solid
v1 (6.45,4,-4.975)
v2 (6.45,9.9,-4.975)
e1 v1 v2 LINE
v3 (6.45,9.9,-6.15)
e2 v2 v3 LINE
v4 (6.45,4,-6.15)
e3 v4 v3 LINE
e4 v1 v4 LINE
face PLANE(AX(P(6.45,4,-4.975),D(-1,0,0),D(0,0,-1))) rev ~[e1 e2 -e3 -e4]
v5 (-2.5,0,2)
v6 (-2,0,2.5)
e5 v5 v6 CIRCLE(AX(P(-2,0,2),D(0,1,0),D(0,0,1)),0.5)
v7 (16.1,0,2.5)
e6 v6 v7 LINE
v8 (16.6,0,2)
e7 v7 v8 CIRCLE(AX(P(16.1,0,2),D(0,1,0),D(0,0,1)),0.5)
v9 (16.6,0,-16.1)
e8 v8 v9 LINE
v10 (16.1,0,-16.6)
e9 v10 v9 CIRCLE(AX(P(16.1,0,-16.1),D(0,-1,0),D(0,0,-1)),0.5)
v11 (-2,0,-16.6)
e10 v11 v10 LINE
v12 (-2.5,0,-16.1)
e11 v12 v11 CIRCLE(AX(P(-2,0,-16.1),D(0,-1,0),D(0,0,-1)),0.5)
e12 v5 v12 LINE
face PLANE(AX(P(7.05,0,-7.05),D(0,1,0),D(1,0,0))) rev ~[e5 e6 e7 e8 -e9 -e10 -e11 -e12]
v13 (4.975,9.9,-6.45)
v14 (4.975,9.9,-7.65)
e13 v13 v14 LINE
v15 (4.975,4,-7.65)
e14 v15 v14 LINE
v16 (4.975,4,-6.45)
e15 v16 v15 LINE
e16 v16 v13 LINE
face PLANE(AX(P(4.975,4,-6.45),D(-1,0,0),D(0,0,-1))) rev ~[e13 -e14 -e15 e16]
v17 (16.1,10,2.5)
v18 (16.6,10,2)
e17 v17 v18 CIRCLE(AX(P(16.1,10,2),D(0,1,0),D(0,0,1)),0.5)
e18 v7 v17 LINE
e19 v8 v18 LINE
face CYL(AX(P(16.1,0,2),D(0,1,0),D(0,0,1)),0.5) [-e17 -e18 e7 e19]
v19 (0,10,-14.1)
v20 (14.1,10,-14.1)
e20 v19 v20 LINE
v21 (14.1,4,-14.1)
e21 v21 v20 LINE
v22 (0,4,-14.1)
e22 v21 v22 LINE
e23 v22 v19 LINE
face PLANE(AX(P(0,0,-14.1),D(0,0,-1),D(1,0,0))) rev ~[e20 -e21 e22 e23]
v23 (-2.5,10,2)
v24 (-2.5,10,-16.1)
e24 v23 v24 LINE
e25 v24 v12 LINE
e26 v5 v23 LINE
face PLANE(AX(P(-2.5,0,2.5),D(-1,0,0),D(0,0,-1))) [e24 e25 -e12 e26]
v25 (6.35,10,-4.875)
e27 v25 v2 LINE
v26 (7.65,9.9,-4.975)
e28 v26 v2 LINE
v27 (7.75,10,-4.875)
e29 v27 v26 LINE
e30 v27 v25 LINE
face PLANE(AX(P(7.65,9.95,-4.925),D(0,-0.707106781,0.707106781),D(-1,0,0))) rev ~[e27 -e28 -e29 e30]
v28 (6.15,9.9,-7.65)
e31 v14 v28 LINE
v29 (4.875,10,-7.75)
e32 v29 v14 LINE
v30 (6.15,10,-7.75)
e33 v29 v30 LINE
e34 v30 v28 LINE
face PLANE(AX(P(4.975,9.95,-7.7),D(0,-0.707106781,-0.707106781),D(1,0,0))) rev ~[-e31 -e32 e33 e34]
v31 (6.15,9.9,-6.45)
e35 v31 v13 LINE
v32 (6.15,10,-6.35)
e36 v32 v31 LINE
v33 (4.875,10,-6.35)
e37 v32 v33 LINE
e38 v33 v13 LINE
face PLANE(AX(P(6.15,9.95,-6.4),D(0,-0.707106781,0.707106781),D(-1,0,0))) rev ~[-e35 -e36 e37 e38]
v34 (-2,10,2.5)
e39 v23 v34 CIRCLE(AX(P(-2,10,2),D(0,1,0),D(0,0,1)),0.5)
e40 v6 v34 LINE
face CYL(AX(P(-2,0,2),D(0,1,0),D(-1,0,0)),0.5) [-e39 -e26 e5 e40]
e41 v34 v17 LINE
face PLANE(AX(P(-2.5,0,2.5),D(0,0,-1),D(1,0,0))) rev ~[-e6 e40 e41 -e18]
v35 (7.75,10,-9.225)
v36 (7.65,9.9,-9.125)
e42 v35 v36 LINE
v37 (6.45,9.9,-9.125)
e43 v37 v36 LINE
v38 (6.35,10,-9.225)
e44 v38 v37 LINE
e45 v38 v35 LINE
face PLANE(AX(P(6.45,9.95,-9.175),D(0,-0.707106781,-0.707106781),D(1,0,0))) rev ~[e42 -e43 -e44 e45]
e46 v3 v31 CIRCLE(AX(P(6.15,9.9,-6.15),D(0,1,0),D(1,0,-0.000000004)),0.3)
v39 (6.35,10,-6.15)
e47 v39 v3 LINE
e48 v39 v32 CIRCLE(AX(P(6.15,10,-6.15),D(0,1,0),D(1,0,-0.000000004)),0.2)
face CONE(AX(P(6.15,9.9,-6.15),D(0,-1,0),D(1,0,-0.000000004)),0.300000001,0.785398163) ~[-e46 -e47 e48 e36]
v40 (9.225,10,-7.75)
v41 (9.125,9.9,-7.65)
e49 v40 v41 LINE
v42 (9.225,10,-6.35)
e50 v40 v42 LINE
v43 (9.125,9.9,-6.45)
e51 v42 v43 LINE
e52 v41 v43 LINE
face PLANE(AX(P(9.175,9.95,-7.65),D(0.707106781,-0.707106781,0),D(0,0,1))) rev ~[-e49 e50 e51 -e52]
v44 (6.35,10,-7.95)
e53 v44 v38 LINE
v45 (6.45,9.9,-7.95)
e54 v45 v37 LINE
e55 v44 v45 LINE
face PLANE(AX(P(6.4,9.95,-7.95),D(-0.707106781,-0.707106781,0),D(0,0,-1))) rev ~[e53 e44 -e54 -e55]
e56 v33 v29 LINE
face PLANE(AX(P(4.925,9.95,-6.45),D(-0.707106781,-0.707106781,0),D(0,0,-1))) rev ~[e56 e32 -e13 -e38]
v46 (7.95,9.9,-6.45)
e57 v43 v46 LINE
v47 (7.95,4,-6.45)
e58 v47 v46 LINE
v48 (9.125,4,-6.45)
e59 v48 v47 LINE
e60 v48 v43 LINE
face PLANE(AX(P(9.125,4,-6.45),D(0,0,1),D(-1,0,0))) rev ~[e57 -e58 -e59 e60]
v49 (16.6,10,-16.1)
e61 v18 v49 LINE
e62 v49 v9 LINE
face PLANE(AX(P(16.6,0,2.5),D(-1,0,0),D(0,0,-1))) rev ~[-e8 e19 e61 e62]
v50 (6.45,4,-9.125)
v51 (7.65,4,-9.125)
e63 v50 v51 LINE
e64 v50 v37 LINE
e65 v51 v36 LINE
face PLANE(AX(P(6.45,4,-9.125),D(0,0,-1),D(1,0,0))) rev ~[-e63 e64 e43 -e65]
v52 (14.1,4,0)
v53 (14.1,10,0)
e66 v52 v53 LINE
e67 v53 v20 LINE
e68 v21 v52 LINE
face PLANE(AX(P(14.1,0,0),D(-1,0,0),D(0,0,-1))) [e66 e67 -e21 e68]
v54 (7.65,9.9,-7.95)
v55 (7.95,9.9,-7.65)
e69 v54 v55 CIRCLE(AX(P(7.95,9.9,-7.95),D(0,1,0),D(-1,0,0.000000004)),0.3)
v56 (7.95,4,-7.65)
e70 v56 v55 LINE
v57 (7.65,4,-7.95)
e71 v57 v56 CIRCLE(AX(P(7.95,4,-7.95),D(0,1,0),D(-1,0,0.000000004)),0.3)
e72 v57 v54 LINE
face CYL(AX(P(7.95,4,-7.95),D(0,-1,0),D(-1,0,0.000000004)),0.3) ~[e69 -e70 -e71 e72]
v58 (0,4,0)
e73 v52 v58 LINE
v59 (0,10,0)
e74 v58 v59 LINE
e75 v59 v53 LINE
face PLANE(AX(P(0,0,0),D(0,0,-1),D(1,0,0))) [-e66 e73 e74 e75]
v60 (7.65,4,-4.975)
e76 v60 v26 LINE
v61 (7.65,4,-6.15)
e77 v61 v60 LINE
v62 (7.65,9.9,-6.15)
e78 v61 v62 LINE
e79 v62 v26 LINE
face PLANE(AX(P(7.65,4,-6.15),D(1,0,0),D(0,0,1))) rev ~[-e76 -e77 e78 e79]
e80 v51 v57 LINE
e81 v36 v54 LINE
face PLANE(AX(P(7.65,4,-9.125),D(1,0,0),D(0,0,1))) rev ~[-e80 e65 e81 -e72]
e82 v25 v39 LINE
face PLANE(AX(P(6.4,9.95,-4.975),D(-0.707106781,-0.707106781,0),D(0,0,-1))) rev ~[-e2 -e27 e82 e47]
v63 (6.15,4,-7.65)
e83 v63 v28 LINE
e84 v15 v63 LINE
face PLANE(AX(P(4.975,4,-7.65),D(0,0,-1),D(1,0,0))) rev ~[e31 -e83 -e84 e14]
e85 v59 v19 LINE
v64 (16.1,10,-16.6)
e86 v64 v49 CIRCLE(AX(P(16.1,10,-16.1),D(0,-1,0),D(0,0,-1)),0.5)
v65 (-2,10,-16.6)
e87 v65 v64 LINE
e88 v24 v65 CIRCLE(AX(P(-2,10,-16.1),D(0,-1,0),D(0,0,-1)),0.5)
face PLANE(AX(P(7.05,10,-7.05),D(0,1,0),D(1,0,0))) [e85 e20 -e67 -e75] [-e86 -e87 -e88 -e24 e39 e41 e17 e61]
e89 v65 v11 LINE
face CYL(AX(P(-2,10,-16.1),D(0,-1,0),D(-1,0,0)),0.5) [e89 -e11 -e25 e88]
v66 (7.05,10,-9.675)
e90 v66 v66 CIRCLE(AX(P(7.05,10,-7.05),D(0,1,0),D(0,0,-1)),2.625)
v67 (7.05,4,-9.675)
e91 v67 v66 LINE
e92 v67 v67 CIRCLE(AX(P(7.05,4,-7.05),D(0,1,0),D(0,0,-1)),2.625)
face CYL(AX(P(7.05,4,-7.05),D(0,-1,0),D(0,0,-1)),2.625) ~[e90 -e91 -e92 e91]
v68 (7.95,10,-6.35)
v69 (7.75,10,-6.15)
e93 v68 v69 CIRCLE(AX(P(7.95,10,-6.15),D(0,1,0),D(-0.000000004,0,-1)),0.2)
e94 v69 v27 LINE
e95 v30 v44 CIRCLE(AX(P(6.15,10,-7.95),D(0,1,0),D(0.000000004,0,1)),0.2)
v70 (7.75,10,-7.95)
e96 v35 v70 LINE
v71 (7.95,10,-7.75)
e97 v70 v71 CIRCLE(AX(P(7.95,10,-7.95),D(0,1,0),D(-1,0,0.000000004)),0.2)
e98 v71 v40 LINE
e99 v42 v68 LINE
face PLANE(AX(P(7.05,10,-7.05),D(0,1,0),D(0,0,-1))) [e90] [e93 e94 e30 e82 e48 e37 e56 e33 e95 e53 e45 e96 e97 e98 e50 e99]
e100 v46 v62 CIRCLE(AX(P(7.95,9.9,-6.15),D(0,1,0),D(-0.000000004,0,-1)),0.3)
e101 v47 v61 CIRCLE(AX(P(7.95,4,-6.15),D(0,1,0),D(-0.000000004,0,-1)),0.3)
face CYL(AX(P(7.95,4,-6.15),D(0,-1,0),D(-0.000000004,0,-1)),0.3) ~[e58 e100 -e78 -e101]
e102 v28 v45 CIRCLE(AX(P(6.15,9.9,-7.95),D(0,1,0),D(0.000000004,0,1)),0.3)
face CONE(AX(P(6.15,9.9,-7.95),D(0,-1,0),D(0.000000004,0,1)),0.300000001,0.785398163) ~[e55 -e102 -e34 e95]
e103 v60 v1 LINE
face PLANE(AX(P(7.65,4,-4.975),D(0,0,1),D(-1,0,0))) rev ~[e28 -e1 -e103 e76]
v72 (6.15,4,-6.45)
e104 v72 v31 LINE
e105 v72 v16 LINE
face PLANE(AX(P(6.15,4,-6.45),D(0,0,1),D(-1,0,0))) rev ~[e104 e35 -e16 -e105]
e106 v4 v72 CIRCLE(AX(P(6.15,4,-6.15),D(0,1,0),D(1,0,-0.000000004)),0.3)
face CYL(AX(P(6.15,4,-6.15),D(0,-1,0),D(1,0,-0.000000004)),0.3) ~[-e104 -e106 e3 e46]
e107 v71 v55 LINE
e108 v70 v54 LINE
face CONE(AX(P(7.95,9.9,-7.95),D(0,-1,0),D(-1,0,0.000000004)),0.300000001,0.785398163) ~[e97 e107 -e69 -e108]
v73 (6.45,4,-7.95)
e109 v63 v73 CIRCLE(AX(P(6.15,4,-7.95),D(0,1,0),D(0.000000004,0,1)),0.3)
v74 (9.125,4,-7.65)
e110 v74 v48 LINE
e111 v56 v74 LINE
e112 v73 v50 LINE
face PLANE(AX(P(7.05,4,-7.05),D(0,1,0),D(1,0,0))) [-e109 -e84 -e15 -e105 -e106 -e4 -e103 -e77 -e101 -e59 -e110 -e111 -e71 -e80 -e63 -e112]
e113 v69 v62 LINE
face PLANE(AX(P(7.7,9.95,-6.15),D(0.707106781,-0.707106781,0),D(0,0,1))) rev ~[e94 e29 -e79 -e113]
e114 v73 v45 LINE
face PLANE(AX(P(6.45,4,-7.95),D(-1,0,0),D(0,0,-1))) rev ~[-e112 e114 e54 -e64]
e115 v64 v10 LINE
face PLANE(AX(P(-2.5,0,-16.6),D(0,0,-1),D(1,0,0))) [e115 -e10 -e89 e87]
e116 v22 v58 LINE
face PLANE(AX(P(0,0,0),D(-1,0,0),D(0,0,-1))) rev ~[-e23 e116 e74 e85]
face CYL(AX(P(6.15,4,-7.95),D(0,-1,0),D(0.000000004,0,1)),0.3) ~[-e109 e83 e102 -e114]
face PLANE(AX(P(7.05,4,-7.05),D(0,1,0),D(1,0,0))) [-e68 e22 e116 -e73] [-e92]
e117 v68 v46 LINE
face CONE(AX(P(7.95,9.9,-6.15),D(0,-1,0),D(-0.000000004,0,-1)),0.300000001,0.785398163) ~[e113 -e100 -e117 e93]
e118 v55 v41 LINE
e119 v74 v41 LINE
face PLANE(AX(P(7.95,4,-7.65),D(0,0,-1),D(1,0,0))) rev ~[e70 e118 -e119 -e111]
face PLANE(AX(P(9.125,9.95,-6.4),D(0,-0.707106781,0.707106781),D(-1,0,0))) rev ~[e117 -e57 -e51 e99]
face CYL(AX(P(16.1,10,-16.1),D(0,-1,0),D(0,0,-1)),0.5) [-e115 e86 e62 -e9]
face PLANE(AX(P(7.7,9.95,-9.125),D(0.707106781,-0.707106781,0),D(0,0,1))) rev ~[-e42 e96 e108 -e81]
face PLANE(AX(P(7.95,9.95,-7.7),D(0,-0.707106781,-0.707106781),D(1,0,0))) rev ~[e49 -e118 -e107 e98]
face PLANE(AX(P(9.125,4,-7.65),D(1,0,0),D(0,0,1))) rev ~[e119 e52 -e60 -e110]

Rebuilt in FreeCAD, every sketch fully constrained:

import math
import FreeCAD as App
import Part
import Sketcher
Q = App.Units.Quantity


def edges_at(feature, points):
    """Names of the edges that pass closest to the given points."""
    edges = feature.Shape.Edges
    near = lambda p: min(range(len(edges)), key=lambda i: edges[i].distToShape(Part.Vertex(*p))[0])
    return sorted({f"Edge{near(p) + 1}" for p in points})


def add_polygon(sketch, points):
    """Adds a closed chain of lines whose ends are joined by coincident constraints."""
    first, n = sketch.GeometryCount, len(points)
    for a, b in zip(points, points[1:] + points[:1]):
        sketch.addGeometry(Part.LineSegment(App.Vector(*a, 0), App.Vector(*b, 0)), False)
    for i in range(n):
        sketch.addConstraint(Sketcher.Constraint("Coincident", first + i, 2, first + (i + 1) % n, 1))

doc = App.newDocument("Part")
body = doc.addObject("PartDesign::Body", "Body")

sketch1 = body.newObject("Sketcher::SketchObject", "Sketch")
sketch1.AttachmentSupport = (doc.getObject("XZ_Plane"), [""])
sketch1.MapMode = "FlatFace"
add_polygon(sketch1, [(-2, -17), (-2, 2), (17, 2), (17, -17)])
sketch1.addConstraint(Sketcher.Constraint("Vertical", 0))
sketch1.addConstraint(Sketcher.Constraint("Horizontal", 1))
sketch1.addConstraint(Sketcher.Constraint("Vertical", 2))
sketch1.addConstraint(Sketcher.Constraint("Horizontal", 3))
sketch1.addConstraint(Sketcher.Constraint("Equal", 3, 0))
sketch1.addConstraint(Sketcher.Constraint("DistanceX", 1, 1, 1, 2, Q("19.1 mm")))
sketch1.addConstraint(Sketcher.Constraint("DistanceX", 0, 2, -1, 1, Q("2.5 mm")))
sketch1.addConstraint(Sketcher.Constraint("DistanceY", -1, 1, 0, 2, Q("2.5 mm")))
pad1 = body.newObject("PartDesign::Pad", "Pad")
pad1.Profile = sketch1
pad1.Length = 4
pad1.Reversed = True

sketch2 = body.newObject("Sketcher::SketchObject", "Sketch001")
sketch2.AttachmentSupport = (doc.getObject("XZ_Plane"), [""])
sketch2.MapMode = "FlatFace"
add_polygon(sketch2, [(-2, -17), (-2, 2), (17, 2), (17, -17)])
add_polygon(sketch2, [(14, 0), (0, 0), (0, -14), (14, -14)])
sketch2.addConstraint(Sketcher.Constraint("Vertical", 0))
sketch2.addConstraint(Sketcher.Constraint("Horizontal", 1))
sketch2.addConstraint(Sketcher.Constraint("Vertical", 2))
sketch2.addConstraint(Sketcher.Constraint("Horizontal", 3))
sketch2.addConstraint(Sketcher.Constraint("Horizontal", 4))
sketch2.addConstraint(Sketcher.Constraint("Vertical", 5))
sketch2.addConstraint(Sketcher.Constraint("Horizontal", 6))
sketch2.addConstraint(Sketcher.Constraint("Vertical", 7))
sketch2.addConstraint(Sketcher.Constraint("Coincident", 4, 2, -1, 1))
sketch2.addConstraint(Sketcher.Constraint("Equal", 3, 0))
sketch2.addConstraint(Sketcher.Constraint("Equal", 6, 5))
sketch2.addConstraint(Sketcher.Constraint("DistanceX", 1, 1, 1, 2, Q("19.1 mm")))
sketch2.addConstraint(Sketcher.Constraint("DistanceX", 4, 2, 4, 1, Q("14.1 mm")))
sketch2.addConstraint(Sketcher.Constraint("DistanceX", 0, 2, -1, 1, Q("2.5 mm")))
sketch2.addConstraint(Sketcher.Constraint("DistanceY", -1, 1, 0, 2, Q("2.5 mm")))
pad2 = body.newObject("PartDesign::Pad", "Pad001")
pad2.Profile = sketch2
pad2.Length = 10
pad2.Reversed = True

sketch3 = body.newObject("Sketcher::SketchObject", "Sketch002")
sketch3.AttachmentSupport = (doc.getObject("XZ_Plane"), [""])
sketch3.MapMode = "FlatFace"
sketch3.AttachmentOffset = App.Placement(App.Vector(0, 0, -4), App.Rotation())
sketch3.addGeometry(Part.Circle(App.Vector(7.05, -7.05, 0), App.Vector(0, 0, 1), 2.62), False)
sketch3.addGeometry(Part.ArcOfCircle(Part.Circle(App.Vector(6.15, -6.15, 0), App.Vector(0, 0, 1), 0.3), math.radians(-90), math.radians(0)), False)
sketch3.addGeometry(Part.LineSegment(App.Vector(6.15, -6.45, 0), App.Vector(4.97, -6.45, 0)), False)
sketch3.addGeometry(Part.LineSegment(App.Vector(4.97, -6.45, 0), App.Vector(4.97, -7.65, 0)), False)
sketch3.addGeometry(Part.LineSegment(App.Vector(4.97, -7.65, 0), App.Vector(6.15, -7.65, 0)), False)
sketch3.addGeometry(Part.ArcOfCircle(Part.Circle(App.Vector(6.15, -7.95, 0), App.Vector(0, 0, 1), 0.3), math.radians(0), math.radians(90)), False)
sketch3.addGeometry(Part.LineSegment(App.Vector(6.45, -7.95, 0), App.Vector(6.45, -9.12, 0)), False)
sketch3.addGeometry(Part.LineSegment(App.Vector(6.45, -9.12, 0), App.Vector(7.65, -9.12, 0)), False)
sketch3.addGeometry(Part.LineSegment(App.Vector(7.65, -9.12, 0), App.Vector(7.65, -7.95, 0)), False)
sketch3.addGeometry(Part.ArcOfCircle(Part.Circle(App.Vector(7.95, -7.95, 0), App.Vector(0, 0, 1), 0.3), math.radians(90), math.radians(180)), False)
sketch3.addGeometry(Part.LineSegment(App.Vector(7.95, -7.65, 0), App.Vector(9.12, -7.65, 0)), False)
sketch3.addGeometry(Part.LineSegment(App.Vector(9.12, -7.65, 0), App.Vector(9.12, -6.45, 0)), False)
sketch3.addGeometry(Part.LineSegment(App.Vector(9.12, -6.45, 0), App.Vector(7.95, -6.45, 0)), False)
sketch3.addGeometry(Part.ArcOfCircle(Part.Circle(App.Vector(7.95, -6.15, 0), App.Vector(0, 0, 1), 0.3), math.radians(-180), math.radians(-90)), False)
sketch3.addGeometry(Part.LineSegment(App.Vector(7.65, -6.15, 0), App.Vector(7.65, -4.97, 0)), False)
sketch3.addGeometry(Part.LineSegment(App.Vector(7.65, -4.97, 0), App.Vector(6.45, -4.97, 0)), False)
sketch3.addGeometry(Part.LineSegment(App.Vector(6.45, -4.97, 0), App.Vector(6.45, -6.15, 0)), False)
sketch3.addConstraint(Sketcher.Constraint("Tangent", 1, 1, 2, 1))
sketch3.addConstraint(Sketcher.Constraint("Coincident", 2, 2, 3, 1))
sketch3.addConstraint(Sketcher.Constraint("Coincident", 3, 2, 4, 1))
sketch3.addConstraint(Sketcher.Constraint("Tangent", 4, 2, 5, 2))
sketch3.addConstraint(Sketcher.Constraint("Tangent", 5, 1, 6, 1))
sketch3.addConstraint(Sketcher.Constraint("Coincident", 6, 2, 7, 1))
sketch3.addConstraint(Sketcher.Constraint("Coincident", 7, 2, 8, 1))
sketch3.addConstraint(Sketcher.Constraint("Tangent", 8, 2, 9, 2))
sketch3.addConstraint(Sketcher.Constraint("Tangent", 9, 1, 10, 1))
sketch3.addConstraint(Sketcher.Constraint("Coincident", 10, 2, 11, 1))
sketch3.addConstraint(Sketcher.Constraint("Coincident", 11, 2, 12, 1))
sketch3.addConstraint(Sketcher.Constraint("Tangent", 12, 2, 13, 2))
sketch3.addConstraint(Sketcher.Constraint("Tangent", 13, 1, 14, 1))
sketch3.addConstraint(Sketcher.Constraint("Coincident", 14, 2, 15, 1))
sketch3.addConstraint(Sketcher.Constraint("Coincident", 15, 2, 16, 1))
sketch3.addConstraint(Sketcher.Constraint("Tangent", 16, 2, 1, 2))
sketch3.addConstraint(Sketcher.Constraint("Horizontal", 2))
sketch3.addConstraint(Sketcher.Constraint("Vertical", 3))
sketch3.addConstraint(Sketcher.Constraint("Horizontal", 4))
sketch3.addConstraint(Sketcher.Constraint("Vertical", 6))
sketch3.addConstraint(Sketcher.Constraint("Horizontal", 7))
sketch3.addConstraint(Sketcher.Constraint("Vertical", 8))
sketch3.addConstraint(Sketcher.Constraint("Horizontal", 10))
sketch3.addConstraint(Sketcher.Constraint("Vertical", 11))
sketch3.addConstraint(Sketcher.Constraint("Horizontal", 12))
sketch3.addConstraint(Sketcher.Constraint("Vertical", 14))
sketch3.addConstraint(Sketcher.Constraint("Horizontal", 15))
sketch3.addConstraint(Sketcher.Constraint("Vertical", 16))
sketch3.addConstraint(Sketcher.Constraint("Equal", 1, 5))
sketch3.addConstraint(Sketcher.Constraint("Equal", 5, 9))
sketch3.addConstraint(Sketcher.Constraint("Equal", 9, 13))
sketch3.addConstraint(Sketcher.Constraint("Horizontal", 5, 3, 9, 3))
sketch3.addConstraint(Sketcher.Constraint("Horizontal", 1, 3, 13, 3))
sketch3.addConstraint(Sketcher.Constraint("Vertical", 1, 3, 5, 3))
sketch3.addConstraint(Sketcher.Constraint("Vertical", 9, 3, 13, 3))
sketch3.addConstraint(Sketcher.Constraint("Equal", 4, 10))
sketch3.addConstraint(Sketcher.Constraint("Equal", 15, 3))
sketch3.addConstraint(Sketcher.Constraint("Equal", 12, 6))
sketch3.addConstraint(Sketcher.Constraint("Equal", 8, 14))
sketch3.addConstraint(Sketcher.Constraint("Radius", 1, Q("0.3 mm")))
sketch3.addConstraint(Sketcher.Constraint("Diameter", 0, Q("5.25 mm")))
sketch3.addConstraint(Sketcher.Constraint("DistanceX", 7, 1, 7, 2, Q("1.2 mm")))
sketch3.addConstraint(Sketcher.Constraint("DistanceX", 1, 3, 0, 3, Q("0.9 mm")))
sketch3.addConstraint(Sketcher.Constraint("DistanceY", 0, 3, 1, 3, Q("0.9 mm")))
sketch3.addConstraint(Sketcher.Constraint("DistanceX", 2, 2, 2, 1, Q("1.175 mm")))
sketch3.addConstraint(Sketcher.Constraint("DistanceX", -1, 1, 0, 3, Q("7.05 mm")))
sketch3.addConstraint(Sketcher.Constraint("DistanceY", 0, 3, -1, 1, Q("7.05 mm")))
pad3 = body.newObject("PartDesign::Pad", "Pad002")
pad3.Profile = sketch3
pad3.Length = 6
pad3.Reversed = True
doc.recompute()

chamfer = body.newObject("PartDesign::Chamfer", "Chamfer")
chamfer.Base = (pad3, edges_at(pad3, [
    (5.562, 10, -6.45),
    (7.05, 10, -9.125),
    (7.65, 10, -8.537),
    (9.125, 10, -7.05),
    (8.537, 10, -6.45),
    (7.65, 10, -5.562),
    (7.05, 10, -4.975),
    (6.45, 10, -5.562),
    (6.362, 10, -6.362),
    (4.975, 10, -7.05),
    (5.562, 10, -7.65),
    (6.362, 10, -7.738),
    (6.45, 10, -8.537),
    (7.738, 10, -7.738),
    (8.537, 10, -7.65),
    (7.738, 10, -6.362),
]))
chamfer.Size = 0.1
doc.recompute()

fillet = body.newObject("PartDesign::Fillet", "Fillet")
fillet.Base = (chamfer, edges_at(chamfer, [
    (-2.5, 5, -16.6),
    (16.6, 5, -16.6),
    (16.6, 5, 2.5),
    (-2.5, 5, 2.5),
]))
fillet.Radius = 0.5

doc.recompute()
